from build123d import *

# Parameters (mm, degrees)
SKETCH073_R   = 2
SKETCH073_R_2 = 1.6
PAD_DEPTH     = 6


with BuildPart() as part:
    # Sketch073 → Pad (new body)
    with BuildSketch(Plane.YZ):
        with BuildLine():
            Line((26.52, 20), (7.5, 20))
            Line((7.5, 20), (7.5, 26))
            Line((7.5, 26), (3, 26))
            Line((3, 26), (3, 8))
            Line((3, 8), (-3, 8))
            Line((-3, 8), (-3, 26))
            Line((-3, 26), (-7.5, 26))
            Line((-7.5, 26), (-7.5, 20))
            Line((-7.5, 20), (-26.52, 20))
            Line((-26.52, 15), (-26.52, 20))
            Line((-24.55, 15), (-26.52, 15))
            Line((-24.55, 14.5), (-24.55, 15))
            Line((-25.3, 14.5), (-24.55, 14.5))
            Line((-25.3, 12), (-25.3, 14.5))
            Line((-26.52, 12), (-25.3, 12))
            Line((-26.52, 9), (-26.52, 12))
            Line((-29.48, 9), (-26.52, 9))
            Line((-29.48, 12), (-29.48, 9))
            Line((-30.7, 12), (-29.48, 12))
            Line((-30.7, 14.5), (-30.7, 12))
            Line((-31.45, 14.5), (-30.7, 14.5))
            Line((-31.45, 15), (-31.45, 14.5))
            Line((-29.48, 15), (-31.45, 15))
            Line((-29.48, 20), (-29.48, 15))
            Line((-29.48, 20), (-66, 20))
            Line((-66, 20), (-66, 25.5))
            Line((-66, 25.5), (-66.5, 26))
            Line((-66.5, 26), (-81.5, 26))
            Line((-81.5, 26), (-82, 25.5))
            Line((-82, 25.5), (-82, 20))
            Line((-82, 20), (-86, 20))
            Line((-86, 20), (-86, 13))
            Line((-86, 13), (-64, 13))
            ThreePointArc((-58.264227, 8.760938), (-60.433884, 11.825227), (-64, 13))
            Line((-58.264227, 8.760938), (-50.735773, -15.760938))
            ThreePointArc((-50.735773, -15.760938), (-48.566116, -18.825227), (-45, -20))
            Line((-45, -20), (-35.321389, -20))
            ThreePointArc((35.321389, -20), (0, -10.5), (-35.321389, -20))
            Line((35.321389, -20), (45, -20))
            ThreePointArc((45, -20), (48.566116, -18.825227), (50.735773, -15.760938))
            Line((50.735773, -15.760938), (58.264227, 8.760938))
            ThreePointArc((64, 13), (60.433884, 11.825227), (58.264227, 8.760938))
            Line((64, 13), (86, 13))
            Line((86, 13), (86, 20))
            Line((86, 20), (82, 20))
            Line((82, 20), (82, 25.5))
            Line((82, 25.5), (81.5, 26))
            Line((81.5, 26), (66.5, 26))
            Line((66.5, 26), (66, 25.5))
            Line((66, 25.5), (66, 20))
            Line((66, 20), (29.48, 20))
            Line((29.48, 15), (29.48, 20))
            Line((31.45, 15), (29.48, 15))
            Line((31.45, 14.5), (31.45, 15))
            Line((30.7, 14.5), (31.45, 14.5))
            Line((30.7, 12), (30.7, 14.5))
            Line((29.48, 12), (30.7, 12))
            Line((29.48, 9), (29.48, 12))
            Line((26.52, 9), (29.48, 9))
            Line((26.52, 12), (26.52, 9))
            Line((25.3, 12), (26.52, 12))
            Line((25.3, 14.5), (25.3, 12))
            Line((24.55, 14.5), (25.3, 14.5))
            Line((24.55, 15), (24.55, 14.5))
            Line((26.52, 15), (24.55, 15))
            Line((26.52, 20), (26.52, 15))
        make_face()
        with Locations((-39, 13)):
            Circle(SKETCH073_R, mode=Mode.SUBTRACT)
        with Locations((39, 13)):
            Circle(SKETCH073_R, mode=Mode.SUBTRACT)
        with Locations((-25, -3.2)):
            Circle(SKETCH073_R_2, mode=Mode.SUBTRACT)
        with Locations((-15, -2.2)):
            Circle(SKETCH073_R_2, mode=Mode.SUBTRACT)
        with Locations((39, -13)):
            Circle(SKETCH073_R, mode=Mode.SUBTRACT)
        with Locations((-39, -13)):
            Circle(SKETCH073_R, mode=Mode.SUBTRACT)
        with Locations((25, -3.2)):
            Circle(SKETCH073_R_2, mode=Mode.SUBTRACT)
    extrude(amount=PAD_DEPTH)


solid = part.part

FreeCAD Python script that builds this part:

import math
import FreeCAD as App
import Part
import Sketcher
Q = App.Units.Quantity

doc = App.newDocument("Part")
params = doc.addObject("Spreadsheet::Sheet", "Params")
for row, (alias, value) in enumerate([
    ("sketch1_diameter", "4 mm"),
    ("sketch1_radius", "5.999999 mm"),
    ("sketch1_diameter2", "3.2 mm"),
    ("sketch1_width", "6 mm"),
    ("sketch1_width2", "15 mm"),
    ("pad1_length", "6 mm"),
], start=1):
    params.set(f"A{row}", alias)
    params.set(f"B{row}", "=" + value)
    params.setAlias(f"B{row}", alias)

body = doc.addObject("PartDesign::Body", "Body")

sketch1 = body.newObject("Sketcher::SketchObject", "Sketch")
sketch1.AttachmentSupport = (doc.getObject("YZ_Plane"), [""])
sketch1.MapMode = "FlatFace"
sketch1.addGeometry(Part.LineSegment(App.Vector(26.5, 20, 0), App.Vector(7.5, 20, 0)), False)
sketch1.addGeometry(Part.LineSegment(App.Vector(7.5, 20, 0), App.Vector(7.5, 26, 0)), False)
sketch1.addGeometry(Part.LineSegment(App.Vector(7.5, 26, 0), App.Vector(3, 26, 0)), False)
sketch1.addGeometry(Part.LineSegment(App.Vector(3, 26, 0), App.Vector(3, 8, 0)), False)
sketch1.addGeometry(Part.LineSegment(App.Vector(3, 8, 0), App.Vector(-3, 8, 0)), False)
sketch1.addGeometry(Part.LineSegment(App.Vector(-3, 8, 0), App.Vector(-3, 26, 0)), False)
sketch1.addGeometry(Part.LineSegment(App.Vector(-3, 26, 0), App.Vector(-7.5, 26, 0)), False)
sketch1.addGeometry(Part.LineSegment(App.Vector(-7.5, 26, 0), App.Vector(-7.5, 20, 0)), False)
sketch1.addGeometry(Part.LineSegment(App.Vector(-7.5, 20, 0), App.Vector(-26.5, 20, 0)), False)
sketch1.addGeometry(Part.LineSegment(App.Vector(-26.5, 20, 0), App.Vector(-26.5, 15, 0)), False)
sketch1.addGeometry(Part.LineSegment(App.Vector(-26.5, 15, 0), App.Vector(-24.6, 15, 0)), False)
sketch1.addGeometry(Part.LineSegment(App.Vector(-24.6, 15, 0), App.Vector(-24.6, 14.5, 0)), False)
sketch1.addGeometry(Part.LineSegment(App.Vector(-24.6, 14.5, 0), App.Vector(-25.3, 14.5, 0)), False)
sketch1.addGeometry(Part.LineSegment(App.Vector(-25.3, 14.5, 0), App.Vector(-25.3, 12, 0)), False)
sketch1.addGeometry(Part.LineSegment(App.Vector(-25.3, 12, 0), App.Vector(-26.5, 12, 0)), False)
sketch1.addGeometry(Part.LineSegment(App.Vector(-26.5, 12, 0), App.Vector(-26.5, 9, 0)), False)
sketch1.addGeometry(Part.LineSegment(App.Vector(-26.5, 9, 0), App.Vector(-29.5, 9, 0)), False)
sketch1.addGeometry(Part.LineSegment(App.Vector(-29.5, 9, 0), App.Vector(-29.5, 12, 0)), False)
sketch1.addGeometry(Part.LineSegment(App.Vector(-29.5, 12, 0), App.Vector(-30.7, 12, 0)), False)
sketch1.addGeometry(Part.LineSegment(App.Vector(-30.7, 12, 0), App.Vector(-30.7, 14.5, 0)), False)
sketch1.addGeometry(Part.LineSegment(App.Vector(-30.7, 14.5, 0), App.Vector(-31.4, 14.5, 0)), False)
sketch1.addGeometry(Part.LineSegment(App.Vector(-31.4, 14.5, 0), App.Vector(-31.4, 15, 0)), False)
sketch1.addGeometry(Part.LineSegment(App.Vector(-31.4, 15, 0), App.Vector(-29.5, 15, 0)), False)
sketch1.addGeometry(Part.LineSegment(App.Vector(-29.5, 15, 0), App.Vector(-29.5, 20, 0)), False)
sketch1.addGeometry(Part.LineSegment(App.Vector(-29.5, 20, 0), App.Vector(-66, 20, 0)), False)
sketch1.addGeometry(Part.LineSegment(App.Vector(-66, 20, 0), App.Vector(-66, 25.5, 0)), False)
sketch1.addGeometry(Part.LineSegment(App.Vector(-66, 25.5, 0), App.Vector(-66.5, 26, 0)), False)
sketch1.addGeometry(Part.LineSegment(App.Vector(-66.5, 26, 0), App.Vector(-81.5, 26, 0)), False)
sketch1.addGeometry(Part.LineSegment(App.Vector(-81.5, 26, 0), App.Vector(-82, 25.5, 0)), False)
sketch1.addGeometry(Part.LineSegment(App.Vector(-82, 25.5, 0), App.Vector(-82, 20, 0)), False)
sketch1.addGeometry(Part.LineSegment(App.Vector(-82, 20, 0), App.Vector(-86, 20, 0)), False)
sketch1.addGeometry(Part.LineSegment(App.Vector(-86, 20, 0), App.Vector(-86, 13, 0)), False)
sketch1.addGeometry(Part.LineSegment(App.Vector(-86, 13, 0), App.Vector(-64, 13, 0)), False)
sketch1.addGeometry(Part.ArcOfCircle(Part.Circle(App.Vector(-64, 7, 0), App.Vector(0, 0, 1), 6), math.radians(17), math.radians(90)), False)
sketch1.addGeometry(Part.LineSegment(App.Vector(-58.3, 8.8, 0), App.Vector(-50.7, -15.8, 0)), False)
sketch1.addGeometry(Part.ArcOfCircle(Part.Circle(App.Vector(-45, -14, 0), App.Vector(0, 0, 1), 6), math.radians(-163), math.radians(-90)), False)
sketch1.addGeometry(Part.LineSegment(App.Vector(-45, -20, 0), App.Vector(-35.3, -20, 0)), False)
sketch1.addGeometry(Part.ArcOfCircle(Part.Circle(App.Vector(0, -80.9, 0), App.Vector(0, 0, 1), 70.4), math.radians(60), math.radians(120)), False)
sketch1.addGeometry(Part.LineSegment(App.Vector(35.3, -20, 0), App.Vector(45, -20, 0)), False)
sketch1.addGeometry(Part.ArcOfCircle(Part.Circle(App.Vector(45, -14, 0), App.Vector(0, 0, 1), 6), math.radians(-90), math.radians(-17)), False)
sketch1.addGeometry(Part.LineSegment(App.Vector(50.7, -15.8, 0), App.Vector(58.3, 8.8, 0)), False)
sketch1.addGeometry(Part.ArcOfCircle(Part.Circle(App.Vector(64, 7, 0), App.Vector(0, 0, 1), 6), math.radians(90), math.radians(163)), False)
sketch1.addGeometry(Part.LineSegment(App.Vector(64, 13, 0), App.Vector(86, 13, 0)), False)
sketch1.addGeometry(Part.LineSegment(App.Vector(86, 13, 0), App.Vector(86, 20, 0)), False)
sketch1.addGeometry(Part.LineSegment(App.Vector(86, 20, 0), App.Vector(82, 20, 0)), False)
sketch1.addGeometry(Part.LineSegment(App.Vector(82, 20, 0), App.Vector(82, 25.5, 0)), False)
sketch1.addGeometry(Part.LineSegment(App.Vector(82, 25.5, 0), App.Vector(81.5, 26, 0)), False)
sketch1.addGeometry(Part.LineSegment(App.Vector(81.5, 26, 0), App.Vector(66.5, 26, 0)), False)
sketch1.addGeometry(Part.LineSegment(App.Vector(66.5, 26, 0), App.Vector(66, 25.5, 0)), False)
sketch1.addGeometry(Part.LineSegment(App.Vector(66, 25.5, 0), App.Vector(66, 20, 0)), False)
sketch1.addGeometry(Part.LineSegment(App.Vector(66, 20, 0), App.Vector(29.5, 20, 0)), False)
sketch1.addGeometry(Part.LineSegment(App.Vector(29.5, 20, 0), App.Vector(29.5, 15, 0)), False)
sketch1.addGeometry(Part.LineSegment(App.Vector(29.5, 15, 0), App.Vector(31.4, 15, 0)), False)
sketch1.addGeometry(Part.LineSegment(App.Vector(31.4, 15, 0), App.Vector(31.4, 14.5, 0)), False)
sketch1.addGeometry(Part.LineSegment(App.Vector(31.4, 14.5, 0), App.Vector(30.7, 14.5, 0)), False)
sketch1.addGeometry(Part.LineSegment(App.Vector(30.7, 14.5, 0), App.Vector(30.7, 12, 0)), False)
sketch1.addGeometry(Part.LineSegment(App.Vector(30.7, 12, 0), App.Vector(29.5, 12, 0)), False)
sketch1.addGeometry(Part.LineSegment(App.Vector(29.5, 12, 0), App.Vector(29.5, 9, 0)), False)
sketch1.addGeometry(Part.LineSegment(App.Vector(29.5, 9, 0), App.Vector(26.5, 9, 0)), False)
sketch1.addGeometry(Part.LineSegment(App.Vector(26.5, 9, 0), App.Vector(26.5, 12, 0)), False)
sketch1.addGeometry(Part.LineSegment(App.Vector(26.5, 12, 0), App.Vector(25.3, 12, 0)), False)
sketch1.addGeometry(Part.LineSegment(App.Vector(25.3, 12, 0), App.Vector(25.3, 14.5, 0)), False)
sketch1.addGeometry(Part.LineSegment(App.Vector(25.3, 14.5, 0), App.Vector(24.6, 14.5, 0)), False)
sketch1.addGeometry(Part.LineSegment(App.Vector(24.6, 14.5, 0), App.Vector(24.6, 15, 0)), False)
sketch1.addGeometry(Part.LineSegment(App.Vector(24.6, 15, 0), App.Vector(26.5, 15, 0)), False)
sketch1.addGeometry(Part.LineSegment(App.Vector(26.5, 15, 0), App.Vector(26.5, 20, 0)), False)
sketch1.addGeometry(Part.Circle(App.Vector(-39, -13, 0), App.Vector(0, 0, 1), 2), False)
sketch1.addGeometry(Part.Circle(App.Vector(-25, -3.2, 0), App.Vector(0, 0, 1), 1.6), False)
sketch1.addGeometry(Part.Circle(App.Vector(-15, -2.2, 0), App.Vector(0, 0, 1), 1.6), False)
sketch1.addGeometry(Part.Circle(App.Vector(39, -13, 0), App.Vector(0, 0, 1), 2), False)
sketch1.addGeometry(Part.Circle(App.Vector(25, -3.2, 0), App.Vector(0, 0, 1), 1.6), False)
sketch1.addGeometry(Part.Circle(App.Vector(-39, 13, 0), App.Vector(0, 0, 1), 2), False)
sketch1.addGeometry(Part.Circle(App.Vector(39, 13, 0), App.Vector(0, 0, 1), 2), False)
sketch1.addConstraint(Sketcher.Constraint("Coincident", 0, 2, 1, 1))
sketch1.addConstraint(Sketcher.Constraint("Coincident", 1, 2, 2, 1))
sketch1.addConstraint(Sketcher.Constraint("Coincident", 2, 2, 3, 1))
sketch1.addConstraint(Sketcher.Constraint("Coincident", 3, 2, 4, 1))
sketch1.addConstraint(Sketcher.Constraint("Coincident", 4, 2, 5, 1))
sketch1.addConstraint(Sketcher.Constraint("Coincident", 5, 2, 6, 1))
sketch1.addConstraint(Sketcher.Constraint("Coincident", 6, 2, 7, 1))
sketch1.addConstraint(Sketcher.Constraint("Coincident", 7, 2, 8, 1))
sketch1.addConstraint(Sketcher.Constraint("Coincident", 8, 2, 9, 1))
sketch1.addConstraint(Sketcher.Constraint("Coincident", 9, 2, 10, 1))
sketch1.addConstraint(Sketcher.Constraint("Coincident", 10, 2, 11, 1))
sketch1.addConstraint(Sketcher.Constraint("Coincident", 11, 2, 12, 1))
sketch1.addConstraint(Sketcher.Constraint("Coincident", 12, 2, 13, 1))
sketch1.addConstraint(Sketcher.Constraint("Coincident", 13, 2, 14, 1))
sketch1.addConstraint(Sketcher.Constraint("Coincident", 14, 2, 15, 1))
sketch1.addConstraint(Sketcher.Constraint("Coincident", 15, 2, 16, 1))
sketch1.addConstraint(Sketcher.Constraint("Coincident", 16, 2, 17, 1))
sketch1.addConstraint(Sketcher.Constraint("Coincident", 17, 2, 18, 1))
sketch1.addConstraint(Sketcher.Constraint("Coincident", 18, 2, 19, 1))
sketch1.addConstraint(Sketcher.Constraint("Coincident", 19, 2, 20, 1))
sketch1.addConstraint(Sketcher.Constraint("Coincident", 20, 2, 21, 1))
sketch1.addConstraint(Sketcher.Constraint("Coincident", 21, 2, 22, 1))
sketch1.addConstraint(Sketcher.Constraint("Coincident", 22, 2, 23, 1))
sketch1.addConstraint(Sketcher.Constraint("Coincident", 23, 2, 24, 1))
sketch1.addConstraint(Sketcher.Constraint("Coincident", 24, 2, 25, 1))
sketch1.addConstraint(Sketcher.Constraint("Coincident", 25, 2, 26, 1))
sketch1.addConstraint(Sketcher.Constraint("Coincident", 26, 2, 27, 1))
sketch1.addConstraint(Sketcher.Constraint("Coincident", 27, 2, 28, 1))
sketch1.addConstraint(Sketcher.Constraint("Coincident", 28, 2, 29, 1))
sketch1.addConstraint(Sketcher.Constraint("Coincident", 29, 2, 30, 1))
sketch1.addConstraint(Sketcher.Constraint("Coincident", 30, 2, 31, 1))
sketch1.addConstraint(Sketcher.Constraint("Coincident", 31, 2, 32, 1))
sketch1.addConstraint(Sketcher.Constraint("Tangent", 32, 2, 33, 2))
sketch1.addConstraint(Sketcher.Constraint("Tangent", 33, 1, 34, 1))
sketch1.addConstraint(Sketcher.Constraint("Tangent", 34, 2, 35, 1))
sketch1.addConstraint(Sketcher.Constraint("Tangent", 35, 2, 36, 1))
sketch1.addConstraint(Sketcher.Constraint("Coincident", 36, 2, 37, 2))
sketch1.addConstraint(Sketcher.Constraint("Coincident", 37, 1, 38, 1))
sketch1.addConstraint(Sketcher.Constraint("Tangent", 38, 2, 39, 1))
sketch1.addConstraint(Sketcher.Constraint("Tangent", 39, 2, 40, 1))
sketch1.addConstraint(Sketcher.Constraint("Tangent", 40, 2, 41, 2))
sketch1.addConstraint(Sketcher.Constraint("Tangent", 41, 1, 42, 1))
sketch1.addConstraint(Sketcher.Constraint("Coincident", 42, 2, 43, 1))
sketch1.addConstraint(Sketcher.Constraint("Coincident", 43, 2, 44, 1))
sketch1.addConstraint(Sketcher.Constraint("Coincident", 44, 2, 45, 1))
sketch1.addConstraint(Sketcher.Constraint("Coincident", 45, 2, 46, 1))
sketch1.addConstraint(Sketcher.Constraint("Coincident", 46, 2, 47, 1))
sketch1.addConstraint(Sketcher.Constraint("Coincident", 47, 2, 48, 1))
sketch1.addConstraint(Sketcher.Constraint("Coincident", 48, 2, 49, 1))
sketch1.addConstraint(Sketcher.Constraint("Coincident", 49, 2, 50, 1))
sketch1.addConstraint(Sketcher.Constraint("Coincident", 50, 2, 51, 1))
sketch1.addConstraint(Sketcher.Constraint("Coincident", 51, 2, 52, 1))
sketch1.addConstraint(Sketcher.Constraint("Coincident", 52, 2, 53, 1))
sketch1.addConstraint(Sketcher.Constraint("Coincident", 53, 2, 54, 1))
sketch1.addConstraint(Sketcher.Constraint("Coincident", 54, 2, 55, 1))
sketch1.addConstraint(Sketcher.Constraint("Coincident", 55, 2, 56, 1))
sketch1.addConstraint(Sketcher.Constraint("Coincident", 56, 2, 57, 1))
sketch1.addConstraint(Sketcher.Constraint("Coincident", 57, 2, 58, 1))
sketch1.addConstraint(Sketcher.Constraint("Coincident", 58, 2, 59, 1))
sketch1.addConstraint(Sketcher.Constraint("Coincident", 59, 2, 60, 1))
sketch1.addConstraint(Sketcher.Constraint("Coincident", 60, 2, 61, 1))
sketch1.addConstraint(Sketcher.Constraint("Coincident", 61, 2, 62, 1))
sketch1.addConstraint(Sketcher.Constraint("Coincident", 62, 2, 63, 1))
sketch1.addConstraint(Sketcher.Constraint("Coincident", 63, 2, 64, 1))
sketch1.addConstraint(Sketcher.Constraint("Coincident", 64, 2, 65, 1))
sketch1.addConstraint(Sketcher.Constraint("Coincident", 65, 2, 0, 1))
sketch1.addConstraint(Sketcher.Constraint("Horizontal", 0))
sketch1.addConstraint(Sketcher.Constraint("Vertical", 1))
sketch1.addConstraint(Sketcher.Constraint("Horizontal", 2))
sketch1.addConstraint(Sketcher.Constraint("Vertical", 3))
sketch1.addConstraint(Sketcher.Constraint("Horizontal", 4))
sketch1.addConstraint(Sketcher.Constraint("Vertical", 5))
sketch1.addConstraint(Sketcher.Constraint("Horizontal", 6))
sketch1.addConstraint(Sketcher.Constraint("Vertical", 7))
sketch1.addConstraint(Sketcher.Constraint("Horizontal", 8))
sketch1.addConstraint(Sketcher.Constraint("Vertical", 9))
sketch1.addConstraint(Sketcher.Constraint("Horizontal", 10))
sketch1.addConstraint(Sketcher.Constraint("Vertical", 11))
sketch1.addConstraint(Sketcher.Constraint("Horizontal", 12))
sketch1.addConstraint(Sketcher.Constraint("Vertical", 13))
sketch1.addConstraint(Sketcher.Constraint("Horizontal", 14))
sketch1.addConstraint(Sketcher.Constraint("Vertical", 15))
sketch1.addConstraint(Sketcher.Constraint("Horizontal", 16))
sketch1.addConstraint(Sketcher.Constraint("Vertical", 17))
sketch1.addConstraint(Sketcher.Constraint("Horizontal", 18))
sketch1.addConstraint(Sketcher.Constraint("Vertical", 19))
sketch1.addConstraint(Sketcher.Constraint("Horizontal", 20))
sketch1.addConstraint(Sketcher.Constraint("Vertical", 21))
sketch1.addConstraint(Sketcher.Constraint("Horizontal", 22))
sketch1.addConstraint(Sketcher.Constraint("Vertical", 23))
sketch1.addConstraint(Sketcher.Constraint("Horizontal", 24))
sketch1.addConstraint(Sketcher.Constraint("Vertical", 25))
sketch1.addConstraint(Sketcher.Constraint("Horizontal", 27))
sketch1.addConstraint(Sketcher.Constraint("Vertical", 29))
sketch1.addConstraint(Sketcher.Constraint("Horizontal", 30))
sketch1.addConstraint(Sketcher.Constraint("Vertical", 31))
sketch1.addConstraint(Sketcher.Constraint("Horizontal", 32))
sketch1.addConstraint(Sketcher.Constraint("Horizontal", 36))
sketch1.addConstraint(Sketcher.Constraint("Horizontal", 38))
sketch1.addConstraint(Sketcher.Constraint("Horizontal", 42))
sketch1.addConstraint(Sketcher.Constraint("Vertical", 43))
sketch1.addConstraint(Sketcher.Constraint("Horizontal", 44))
sketch1.addConstraint(Sketcher.Constraint("Vertical", 45))
sketch1.addConstraint(Sketcher.Constraint("Horizontal", 47))
sketch1.addConstraint(Sketcher.Constraint("Vertical", 49))
sketch1.addConstraint(Sketcher.Constraint("Horizontal", 50))
sketch1.addConstraint(Sketcher.Constraint("Vertical", 51))
sketch1.addConstraint(Sketcher.Constraint("Horizontal", 52))
sketch1.addConstraint(Sketcher.Constraint("Vertical", 53))
sketch1.addConstraint(Sketcher.Constraint("Horizontal", 54))
sketch1.addConstraint(Sketcher.Constraint("Vertical", 55))
sketch1.addConstraint(Sketcher.Constraint("Horizontal", 56))
sketch1.addConstraint(Sketcher.Constraint("Vertical", 57))
sketch1.addConstraint(Sketcher.Constraint("Horizontal", 58))
sketch1.addConstraint(Sketcher.Constraint("Vertical", 59))
sketch1.addConstraint(Sketcher.Constraint("Horizontal", 60))
sketch1.addConstraint(Sketcher.Constraint("Vertical", 61))
sketch1.addConstraint(Sketcher.Constraint("Horizontal", 62))
sketch1.addConstraint(Sketcher.Constraint("Vertical", 63))
sketch1.addConstraint(Sketcher.Constraint("Horizontal", 64))
sketch1.addConstraint(Sketcher.Constraint("Vertical", 65))
sketch1.addConstraint(Sketcher.Constraint("Equal", 33, 35))
sketch1.addConstraint(Sketcher.Constraint("Equal", 35, 39))
sketch1.addConstraint(Sketcher.Constraint("Equal", 39, 41))
sketch1.addConstraint(Sketcher.Constraint("Equal", 67, 68))
sketch1.addConstraint(Sketcher.Constraint("Equal", 66, 69))
sketch1.addConstraint(Sketcher.Constraint("Equal", 68, 70))
sketch1.addConstraint(Sketcher.Constraint("Equal", 69, 71))
sketch1.addConstraint(Sketcher.Constraint("Equal", 71, 72))
sketch1.addConstraint(Sketcher.Constraint("Symmetric", 69, 3, 71, 3, -1, 1))
sketch1.addConstraint(Sketcher.Constraint("Symmetric", 66, 3, 72, 3, -1, 1))
sketch1.addConstraint(Sketcher.Constraint("Symmetric", 35, 3, 39, 3, -2))
sketch1.addConstraint(Sketcher.Constraint("Symmetric", 33, 3, 41, 3, -2))
sketch1.addConstraint(Sketcher.Constraint("Symmetric", 66, 3, 69, 3, -2))
sketch1.addConstraint(Sketcher.Constraint("Symmetric", 67, 3, 70, 3, -2))
sketch1.addConstraint(Sketcher.Constraint("Symmetric", 2, 2, 5, 2, -2))
sketch1.addConstraint(Sketcher.Constraint("Symmetric", 0, 2, 7, 2, -2))
sketch1.addConstraint(Sketcher.Constraint("Symmetric", 30, 2, 43, 2, -2))
sketch1.addConstraint(Sketcher.Constraint("Symmetric", 28, 2, 45, 2, -2))
sketch1.addConstraint(Sketcher.Constraint("Symmetric", 27, 2, 46, 2, -2))
sketch1.addConstraint(Sketcher.Constraint("Symmetric", 25, 2, 48, 2, -2))
sketch1.addConstraint(Sketcher.Constraint("Symmetric", 23, 2, 50, 2, -2))
sketch1.addConstraint(Sketcher.Constraint("Symmetric", 21, 2, 52, 2, -2))
sketch1.addConstraint(Sketcher.Constraint("Symmetric", 19, 2, 54, 2, -2))
sketch1.addConstraint(Sketcher.Constraint("Symmetric", 17, 2, 56, 2, -2))
sketch1.addConstraint(Sketcher.Constraint("Symmetric", 15, 2, 58, 2, -2))
sketch1.addConstraint(Sketcher.Constraint("Symmetric", 13, 2, 60, 2, -2))
sketch1.addConstraint(Sketcher.Constraint("Symmetric", 11, 2, 62, 2, -2))
sketch1.addConstraint(Sketcher.Constraint("Symmetric", 9, 2, 64, 2, -2))
sketch1.addConstraint(Sketcher.Constraint("PointOnObject", 37, 3, -2))
sketch1.addConstraint(Sketcher.Constraint("Perpendicular", 26, 28))
sketch1.addConstraint(Sketcher.Constraint("Perpendicular", 28, 46))
sketch1.addConstraint(Sketcher.Constraint("Perpendicular", 46, 48))
sketch1.addConstraint(Sketcher.Constraint("Horizontal", 14, 2, 17, 2))
sketch1.addConstraint(Sketcher.Constraint("Horizontal", 12, 2, 19, 2))
sketch1.addConstraint(Sketcher.Constraint("Horizontal", 10, 2, 21, 2))
sketch1.addConstraint(Sketcher.Constraint("Horizontal", 8, 2, 23, 2))
sketch1.addConstraint(Sketcher.Constraint("Horizontal", 6, 2, 26, 2))
sketch1.addConstraint(Sketcher.Constraint("Horizontal", 25, 2, 28, 2))
sketch1.addConstraint(Sketcher.Constraint("Horizontal", 24, 2, 29, 2))
sketch1.addConstraint(Sketcher.Constraint("Horizontal", 72, 3, 31, 2))
sketch1.addConstraint(Sketcher.Constraint("Vertical", 9, 2, 14, 2))
sketch1.addConstraint(Sketcher.Constraint("Vertical", 17, 2, 22, 2))
sketch1.addConstraint(Sketcher.Constraint("Equal", 14, 18))
sketch1.addConstraint(Sketcher.Constraint("Equal", 12, 20))
sketch1.addConstraint(Sketcher.Constraint("Equal", 4, 1))
sketch1.addConstraint(Sketcher.Constraint("Diameter", 66, Q("4 mm")))
sketch1.addConstraint(Sketcher.Constraint("Radius", 33, Q("5.999999 mm")))
sketch1.addConstraint(Sketcher.Constraint("Diameter", 67, Q("3.2 mm")))
sketch1.addConstraint(Sketcher.Constraint("DistanceX", 4, 2, 4, 1, Q("6 mm")))
sketch1.addConstraint(Sketcher.Constraint("DistanceX", 27, 2, 27, 1, Q("15 mm")))
sketch1.addConstraint(Sketcher.Constraint("DistanceX", 30, 2, 30, 1, Q("4 mm")))
sketch1.addConstraint(Sketcher.Constraint("DistanceX", 32, 1, 32, 2, Q("22 mm")))
sketch1.addConstraint(Sketcher.Constraint("DistanceY", 3, 2, 3, 1, Q("18 mm")))
sketch1.addConstraint(Sketcher.Constraint("DistanceY", 9, 2, 9, 1, Q("5 mm")))
sketch1.addConstraint(Sketcher.Constraint("DistanceY", 15, 2, 15, 1, Q("3 mm")))
sketch1.addConstraint(Sketcher.Constraint("DistanceY", 31, 2, 31, 1, Q("7 mm")))
sketch1.addConstraint(Sketcher.Constraint("DistanceX", 2, 2, 2, 1, Q("4.5 mm")))
sketch1.addConstraint(Sketcher.Constraint("DistanceY", 11, 2, 11, 1, Q("0.5 mm")))
sketch1.addConstraint(Sketcher.Constraint("DistanceY", 13, 2, 13, 1, Q("2.5 mm")))
sketch1.addConstraint(Sketcher.Constraint("DistanceY", 25, 1, 25, 2, Q("5.5 mm")))
sketch1.addConstraint(Sketcher.Constraint("DistanceX", 33, 3, -1, 1, Q("64 mm")))
sketch1.addConstraint(Sketcher.Constraint("DistanceY", -1, 1, 33, 3, Q("7.000001 mm")))
sketch1.addConstraint(Sketcher.Constraint("DistanceX", 35, 3, -1, 1, Q("45 mm")))
sketch1.addConstraint(Sketcher.Constraint("DistanceY", 35, 3, -1, 1, Q("14.000001 mm")))
sketch1.addConstraint(Sketcher.Constraint("DistanceX", 66, 3, -1, 1, Q("39 mm")))
sketch1.addConstraint(Sketcher.Constraint("DistanceX", 67, 3, -1, 1, Q("25 mm")))
sketch1.addConstraint(Sketcher.Constraint("DistanceX", 68, 3, -1, 1, Q("15 mm")))
sketch1.addConstraint(Sketcher.Constraint("DistanceX", 0, 2, 0, 1, Q("19.02 mm")))
sketch1.addConstraint(Sketcher.Constraint("DistanceX", 10, 1, 10, 2, Q("1.97 mm")))
sketch1.addConstraint(Sketcher.Constraint("DistanceX", 12, 2, 12, 1, Q("0.75 mm")))
sketch1.addConstraint(Sketcher.Constraint("DistanceX", 16, 2, 16, 1, Q("2.96 mm")))
sketch1.addConstraint(Sketcher.Constraint("DistanceY", 67, 3, -1, 1, Q("3.2 mm")))
sketch1.addConstraint(Sketcher.Constraint("DistanceY", 68, 3, -1, 1, Q("2.2 mm")))
sketch1.addConstraint(Sketcher.Constraint("Radius", 37, Q("70.413185 mm")))
sketch1.addConstraint(Sketcher.Constraint("DistanceX", 36, 1, 36, 2, Q("9.678611 mm")))
sketch1.setExpression("Constraints[166]", "Params.sketch1_diameter")
sketch1.setExpression("Constraints[167]", "Params.sketch1_radius")
sketch1.setExpression("Constraints[168]", "Params.sketch1_diameter2")
sketch1.setExpression("Constraints[169]", "Params.sketch1_width")
sketch1.setExpression("Constraints[170]", "Params.sketch1_width2")
pad1 = body.newObject("PartDesign::Pad", "Pad")
pad1.Profile = sketch1
pad1.setExpression("Length", "Params.pad1_length")

doc.recompute()
